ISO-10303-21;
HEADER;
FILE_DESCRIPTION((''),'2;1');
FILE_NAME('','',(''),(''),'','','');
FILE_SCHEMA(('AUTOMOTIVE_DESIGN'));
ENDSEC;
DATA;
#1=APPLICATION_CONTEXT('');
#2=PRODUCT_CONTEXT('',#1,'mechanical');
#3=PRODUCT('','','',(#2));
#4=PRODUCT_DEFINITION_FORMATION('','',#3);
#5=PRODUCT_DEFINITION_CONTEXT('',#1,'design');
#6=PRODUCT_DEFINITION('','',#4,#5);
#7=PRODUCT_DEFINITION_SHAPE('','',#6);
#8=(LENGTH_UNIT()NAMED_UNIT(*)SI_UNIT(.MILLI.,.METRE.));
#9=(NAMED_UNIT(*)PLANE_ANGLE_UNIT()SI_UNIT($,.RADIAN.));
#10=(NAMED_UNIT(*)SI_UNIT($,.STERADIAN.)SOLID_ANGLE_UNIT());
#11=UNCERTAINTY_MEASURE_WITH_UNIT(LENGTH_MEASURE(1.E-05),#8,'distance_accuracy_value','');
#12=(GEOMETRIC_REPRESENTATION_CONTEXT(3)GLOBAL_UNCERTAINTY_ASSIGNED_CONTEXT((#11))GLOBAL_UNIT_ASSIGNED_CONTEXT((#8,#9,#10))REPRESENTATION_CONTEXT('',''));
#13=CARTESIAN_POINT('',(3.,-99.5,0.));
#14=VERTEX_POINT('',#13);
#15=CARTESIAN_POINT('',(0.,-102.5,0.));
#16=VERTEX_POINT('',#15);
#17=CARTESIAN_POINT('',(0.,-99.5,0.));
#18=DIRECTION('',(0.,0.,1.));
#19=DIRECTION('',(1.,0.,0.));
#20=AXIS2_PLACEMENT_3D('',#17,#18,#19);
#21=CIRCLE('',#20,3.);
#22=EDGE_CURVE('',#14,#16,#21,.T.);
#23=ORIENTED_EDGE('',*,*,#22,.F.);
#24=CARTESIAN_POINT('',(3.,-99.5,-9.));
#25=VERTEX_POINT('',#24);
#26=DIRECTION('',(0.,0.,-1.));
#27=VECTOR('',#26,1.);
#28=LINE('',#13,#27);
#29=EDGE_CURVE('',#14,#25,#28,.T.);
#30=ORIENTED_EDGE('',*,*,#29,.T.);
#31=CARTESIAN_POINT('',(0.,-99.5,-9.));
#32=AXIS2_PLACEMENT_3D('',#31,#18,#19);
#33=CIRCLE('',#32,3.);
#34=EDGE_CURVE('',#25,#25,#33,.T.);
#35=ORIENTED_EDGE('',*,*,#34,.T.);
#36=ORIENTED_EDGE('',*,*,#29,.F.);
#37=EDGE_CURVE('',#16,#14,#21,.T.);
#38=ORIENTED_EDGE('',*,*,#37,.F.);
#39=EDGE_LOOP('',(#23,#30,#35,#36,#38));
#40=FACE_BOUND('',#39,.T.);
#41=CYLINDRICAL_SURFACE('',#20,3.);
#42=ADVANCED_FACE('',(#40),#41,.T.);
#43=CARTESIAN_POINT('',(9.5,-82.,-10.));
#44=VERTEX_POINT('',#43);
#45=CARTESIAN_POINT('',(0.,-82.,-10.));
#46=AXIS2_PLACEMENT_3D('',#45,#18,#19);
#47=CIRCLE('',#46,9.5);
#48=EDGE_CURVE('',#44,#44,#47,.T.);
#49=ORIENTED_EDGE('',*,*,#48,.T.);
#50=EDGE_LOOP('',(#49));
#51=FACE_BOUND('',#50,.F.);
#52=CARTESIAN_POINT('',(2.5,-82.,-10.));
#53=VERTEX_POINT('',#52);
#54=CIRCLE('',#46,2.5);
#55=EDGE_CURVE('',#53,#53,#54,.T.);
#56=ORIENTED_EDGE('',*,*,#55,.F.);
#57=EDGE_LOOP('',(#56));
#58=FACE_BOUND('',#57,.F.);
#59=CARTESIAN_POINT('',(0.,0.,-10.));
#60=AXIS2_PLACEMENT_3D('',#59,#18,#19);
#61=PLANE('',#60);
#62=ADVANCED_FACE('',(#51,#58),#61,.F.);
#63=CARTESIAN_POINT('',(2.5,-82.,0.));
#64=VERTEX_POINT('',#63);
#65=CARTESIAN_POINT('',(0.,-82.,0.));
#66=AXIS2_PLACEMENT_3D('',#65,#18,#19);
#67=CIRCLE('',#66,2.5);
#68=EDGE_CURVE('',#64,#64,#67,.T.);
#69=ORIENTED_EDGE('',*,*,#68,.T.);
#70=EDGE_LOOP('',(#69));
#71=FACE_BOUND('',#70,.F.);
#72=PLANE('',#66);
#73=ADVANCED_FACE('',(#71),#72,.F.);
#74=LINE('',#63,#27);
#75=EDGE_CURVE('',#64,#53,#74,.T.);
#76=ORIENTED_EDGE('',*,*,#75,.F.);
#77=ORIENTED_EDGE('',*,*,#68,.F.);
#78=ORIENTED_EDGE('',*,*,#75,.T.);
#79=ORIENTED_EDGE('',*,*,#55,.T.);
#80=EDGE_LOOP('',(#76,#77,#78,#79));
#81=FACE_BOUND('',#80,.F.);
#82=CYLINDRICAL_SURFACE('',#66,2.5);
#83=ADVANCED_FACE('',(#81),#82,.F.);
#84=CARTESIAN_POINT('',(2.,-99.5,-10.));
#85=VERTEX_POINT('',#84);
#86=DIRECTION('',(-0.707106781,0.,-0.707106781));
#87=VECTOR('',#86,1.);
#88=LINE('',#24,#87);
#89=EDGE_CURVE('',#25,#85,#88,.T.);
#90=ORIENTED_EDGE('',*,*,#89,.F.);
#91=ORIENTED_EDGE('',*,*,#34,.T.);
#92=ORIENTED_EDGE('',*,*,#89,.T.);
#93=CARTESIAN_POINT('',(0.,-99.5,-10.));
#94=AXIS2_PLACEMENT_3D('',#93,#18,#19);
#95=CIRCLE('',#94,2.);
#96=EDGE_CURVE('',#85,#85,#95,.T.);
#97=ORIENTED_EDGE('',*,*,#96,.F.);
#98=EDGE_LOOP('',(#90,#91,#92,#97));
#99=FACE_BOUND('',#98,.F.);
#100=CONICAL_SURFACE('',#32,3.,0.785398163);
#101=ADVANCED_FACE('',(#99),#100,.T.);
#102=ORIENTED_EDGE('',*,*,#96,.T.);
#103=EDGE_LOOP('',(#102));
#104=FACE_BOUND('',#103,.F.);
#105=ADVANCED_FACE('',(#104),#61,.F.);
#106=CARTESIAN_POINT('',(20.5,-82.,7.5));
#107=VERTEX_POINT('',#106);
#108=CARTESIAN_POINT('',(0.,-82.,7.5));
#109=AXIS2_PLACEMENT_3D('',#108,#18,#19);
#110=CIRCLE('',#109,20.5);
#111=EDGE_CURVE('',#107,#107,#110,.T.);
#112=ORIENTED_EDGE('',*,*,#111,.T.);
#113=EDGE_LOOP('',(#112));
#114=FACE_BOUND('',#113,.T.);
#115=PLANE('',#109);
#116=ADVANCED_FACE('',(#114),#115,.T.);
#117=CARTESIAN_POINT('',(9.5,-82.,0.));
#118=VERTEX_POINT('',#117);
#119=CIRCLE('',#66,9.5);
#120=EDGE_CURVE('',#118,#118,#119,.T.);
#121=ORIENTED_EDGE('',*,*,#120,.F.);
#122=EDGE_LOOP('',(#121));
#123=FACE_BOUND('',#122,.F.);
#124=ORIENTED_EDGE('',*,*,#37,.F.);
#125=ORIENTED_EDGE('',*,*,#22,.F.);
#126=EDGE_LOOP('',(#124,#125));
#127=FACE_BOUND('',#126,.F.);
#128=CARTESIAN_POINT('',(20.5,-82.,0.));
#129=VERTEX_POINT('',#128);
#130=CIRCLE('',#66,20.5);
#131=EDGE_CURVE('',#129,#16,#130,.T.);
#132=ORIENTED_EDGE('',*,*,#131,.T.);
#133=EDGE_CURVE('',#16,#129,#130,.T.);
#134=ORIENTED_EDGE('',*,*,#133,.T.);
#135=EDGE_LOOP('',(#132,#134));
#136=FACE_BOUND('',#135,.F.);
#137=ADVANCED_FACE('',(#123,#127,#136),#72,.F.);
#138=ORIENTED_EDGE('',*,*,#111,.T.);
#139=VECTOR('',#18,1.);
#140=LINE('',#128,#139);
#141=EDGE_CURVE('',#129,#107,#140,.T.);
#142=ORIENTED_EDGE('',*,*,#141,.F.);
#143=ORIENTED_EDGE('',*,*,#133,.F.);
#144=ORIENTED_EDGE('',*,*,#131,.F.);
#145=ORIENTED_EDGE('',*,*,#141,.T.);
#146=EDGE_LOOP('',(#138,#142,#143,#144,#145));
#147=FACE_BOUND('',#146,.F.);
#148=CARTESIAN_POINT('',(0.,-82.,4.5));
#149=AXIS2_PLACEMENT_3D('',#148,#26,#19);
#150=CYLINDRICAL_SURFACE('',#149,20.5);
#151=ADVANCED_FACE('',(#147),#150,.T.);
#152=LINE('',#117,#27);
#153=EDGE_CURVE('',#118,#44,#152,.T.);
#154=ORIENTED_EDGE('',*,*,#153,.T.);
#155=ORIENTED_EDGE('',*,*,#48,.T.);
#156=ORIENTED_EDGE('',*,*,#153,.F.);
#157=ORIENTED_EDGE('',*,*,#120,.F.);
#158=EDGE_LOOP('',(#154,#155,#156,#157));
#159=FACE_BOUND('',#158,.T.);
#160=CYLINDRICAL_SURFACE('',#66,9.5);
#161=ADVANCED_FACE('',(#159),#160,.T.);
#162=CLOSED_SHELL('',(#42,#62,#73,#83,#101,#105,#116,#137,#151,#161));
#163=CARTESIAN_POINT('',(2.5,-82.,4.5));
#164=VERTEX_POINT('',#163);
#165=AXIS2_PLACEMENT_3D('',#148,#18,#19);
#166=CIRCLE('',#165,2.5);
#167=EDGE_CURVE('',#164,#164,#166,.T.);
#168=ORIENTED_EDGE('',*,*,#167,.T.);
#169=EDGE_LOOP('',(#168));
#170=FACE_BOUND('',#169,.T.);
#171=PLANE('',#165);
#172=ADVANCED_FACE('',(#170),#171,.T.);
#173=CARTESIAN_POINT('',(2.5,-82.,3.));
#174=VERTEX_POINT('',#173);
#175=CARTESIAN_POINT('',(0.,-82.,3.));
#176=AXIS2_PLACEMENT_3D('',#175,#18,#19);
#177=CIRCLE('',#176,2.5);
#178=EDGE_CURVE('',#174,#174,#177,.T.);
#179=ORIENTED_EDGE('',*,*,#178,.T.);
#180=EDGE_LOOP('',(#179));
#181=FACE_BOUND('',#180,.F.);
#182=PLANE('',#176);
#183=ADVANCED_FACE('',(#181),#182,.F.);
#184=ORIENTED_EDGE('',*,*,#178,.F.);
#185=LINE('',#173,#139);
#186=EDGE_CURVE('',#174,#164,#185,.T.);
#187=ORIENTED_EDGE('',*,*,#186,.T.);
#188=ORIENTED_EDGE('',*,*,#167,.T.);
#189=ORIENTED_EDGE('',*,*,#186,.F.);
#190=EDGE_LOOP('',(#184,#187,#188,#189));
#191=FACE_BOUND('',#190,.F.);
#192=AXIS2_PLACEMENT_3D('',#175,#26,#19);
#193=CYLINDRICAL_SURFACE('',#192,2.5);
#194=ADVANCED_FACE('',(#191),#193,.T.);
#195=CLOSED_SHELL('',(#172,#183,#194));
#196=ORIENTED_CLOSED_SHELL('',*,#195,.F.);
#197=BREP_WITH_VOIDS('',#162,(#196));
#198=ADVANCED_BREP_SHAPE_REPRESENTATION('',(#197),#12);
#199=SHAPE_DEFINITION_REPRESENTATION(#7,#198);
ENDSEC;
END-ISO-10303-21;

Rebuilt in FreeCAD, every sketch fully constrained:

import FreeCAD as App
import Part
import Sketcher
from FreeCAD import Vector


def edges_at(feature, points):
    """Names of the edges that pass closest to the given points."""
    edges = feature.Shape.Edges
    near = lambda p: min(range(len(edges)), key=lambda i: edges[i].distToShape(Part.Vertex(*p))[0])
    return sorted({f"Edge{near(p) + 1}" for p in points})

doc = App.newDocument("Part")
params = doc.addObject("Spreadsheet::Sheet", "Params")
for row, (alias, value) in enumerate([
    ("sketch1_diameter", "6 mm"),
    ("sketch1_diameter2", "19 mm"),
    ("sketch1_diameter3", "5 mm"),
    ("pad1_length", "10 mm"),
    ("sketch2_diameter", "41 mm"),
    ("pad2_length", "3 mm"),
    ("chamfer_size", "1 mm"),
    ("sketch3_diameter", "41 mm"),
    ("sketch3_diameter2", "5 mm"),
    ("pad3_length", "1.5 mm"),
    ("sketch4_diameter", "41 mm"),
    ("pad4_length", "3 mm"),
], start=1):
    params.set(f"A{row}", alias)
    params.set(f"B{row}", "=" + value)
    params.setAlias(f"B{row}", alias)

body = doc.addObject("PartDesign::Body", "Body")
body.AllowCompound = True

sketch1 = body.newObject("Sketcher::SketchObject", "Sketch")
sketch1.AttachmentSupport = (doc.getObject("XY_Plane"), [""])
sketch1.MapMode = "FlatFace"
sketch1.addGeometry([
    Part.Circle(Vector(0, -82, 0), Vector(0, 0, 1), 9.5),
    Part.Circle(Vector(0, -82, 0), Vector(0, 0, 1), 2.5),
    Part.Circle(Vector(0, -99.5, 0), Vector(0, 0, 1), 3),
], False)
sketch1.addConstraint([
    Sketcher.Constraint("Coincident", 1, 3, 0, 3),
    Sketcher.Constraint("PointOnObject", 0, 3, -2),
    Sketcher.Constraint("PointOnObject", 2, 3, -2),
    Sketcher.Constraint("Diameter", 2, 6.0),
    Sketcher.Constraint("Diameter", 0, 19.0),
    Sketcher.Constraint("Diameter", 1, 5.0),
    Sketcher.Constraint("DistanceY", 0, 3, -1, 1, 82.0),
    Sketcher.Constraint("DistanceY", 2, 3, -1, 1, 99.5),
])
sketch1.setExpression("Constraints[3]", "Params.sketch1_diameter")
sketch1.setExpression("Constraints[4]", "Params.sketch1_diameter2")
sketch1.setExpression("Constraints[5]", "Params.sketch1_diameter3")
pad1 = body.newObject("PartDesign::Pad", "Pad")
pad1.Profile = sketch1
pad1.setExpression("Length", "Params.pad1_length")
pad1.Reversed = True

sketch2 = body.newObject("Sketcher::SketchObject", "Sketch001")
sketch2.AttachmentSupport = (doc.getObject("XY_Plane"), [""])
sketch2.MapMode = "FlatFace"
sketch2.addGeometry(Part.Circle(Vector(0, -82, 0), Vector(0, 0, 1), 20), False)
sketch2.addConstraint([
    Sketcher.Constraint("PointOnObject", 0, 3, -2),
    Sketcher.Constraint("Diameter", 0, 41.0),
    Sketcher.Constraint("DistanceY", 0, 3, -1, 1, 82.0),
])
sketch2.setExpression("Constraints[1]", "Params.sketch2_diameter")
pad2 = body.newObject("PartDesign::Pad", "Pad001")
pad2.Profile = sketch2
pad2.setExpression("Length", "Params.pad2_length")
doc.recompute()

chamfer = body.newObject("PartDesign::Chamfer", "Chamfer")
chamfer.Base = (pad2, edges_at(pad2, [(-3, -99.5, -10)]))
chamfer.setExpression("Size", "Params.chamfer_size")

sketch3 = body.newObject("Sketcher::SketchObject", "Sketch002")
sketch3.AttachmentSupport = (doc.getObject("XY_Plane"), [""])
sketch3.MapMode = "FlatFace"
sketch3.AttachmentOffset = App.Placement(Vector(0, 0, 3), App.Rotation())
sketch3.addGeometry([
    Part.Circle(Vector(0, -82, 0), Vector(0, 0, 1), 20.5),
    Part.Circle(Vector(0, -82, 0), Vector(0, 0, 1), 2.5),
], False)
sketch3.addConstraint([
    Sketcher.Constraint("Coincident", 1, 3, 0, 3),
    Sketcher.Constraint("PointOnObject", 0, 3, -2),
    Sketcher.Constraint("Diameter", 0, 41.0),
    Sketcher.Constraint("Diameter", 1, 5.0),
    Sketcher.Constraint("DistanceY", 0, 3, -1, 1, 82.0),
])
sketch3.setExpression("Constraints[2]", "Params.sketch3_diameter")
sketch3.setExpression("Constraints[3]", "Params.sketch3_diameter2")
pad3 = body.newObject("PartDesign::Pad", "Pad002")
pad3.Profile = sketch3
pad3.setExpression("Length", "Params.pad3_length")

sketch4 = body.newObject("Sketcher::SketchObject", "Sketch003")
sketch4.AttachmentSupport = (doc.getObject("XY_Plane"), [""])
sketch4.MapMode = "FlatFace"
sketch4.AttachmentOffset = App.Placement(Vector(0, 0, 4.5), App.Rotation())
sketch4.addGeometry(Part.Circle(Vector(0, -82, 0), Vector(0, 0, 1), 20), False)
sketch4.addConstraint([
    Sketcher.Constraint("PointOnObject", 0, 3, -2),
    Sketcher.Constraint("Diameter", 0, 41.0),
    Sketcher.Constraint("DistanceY", 0, 3, -1, 1, 82.0),
])
sketch4.setExpression("Constraints[1]", "Params.sketch4_diameter")
pad4 = body.newObject("PartDesign::Pad", "Pad003")
pad4.Profile = sketch4
pad4.setExpression("Length", "Params.pad4_length")

doc.recompute()
